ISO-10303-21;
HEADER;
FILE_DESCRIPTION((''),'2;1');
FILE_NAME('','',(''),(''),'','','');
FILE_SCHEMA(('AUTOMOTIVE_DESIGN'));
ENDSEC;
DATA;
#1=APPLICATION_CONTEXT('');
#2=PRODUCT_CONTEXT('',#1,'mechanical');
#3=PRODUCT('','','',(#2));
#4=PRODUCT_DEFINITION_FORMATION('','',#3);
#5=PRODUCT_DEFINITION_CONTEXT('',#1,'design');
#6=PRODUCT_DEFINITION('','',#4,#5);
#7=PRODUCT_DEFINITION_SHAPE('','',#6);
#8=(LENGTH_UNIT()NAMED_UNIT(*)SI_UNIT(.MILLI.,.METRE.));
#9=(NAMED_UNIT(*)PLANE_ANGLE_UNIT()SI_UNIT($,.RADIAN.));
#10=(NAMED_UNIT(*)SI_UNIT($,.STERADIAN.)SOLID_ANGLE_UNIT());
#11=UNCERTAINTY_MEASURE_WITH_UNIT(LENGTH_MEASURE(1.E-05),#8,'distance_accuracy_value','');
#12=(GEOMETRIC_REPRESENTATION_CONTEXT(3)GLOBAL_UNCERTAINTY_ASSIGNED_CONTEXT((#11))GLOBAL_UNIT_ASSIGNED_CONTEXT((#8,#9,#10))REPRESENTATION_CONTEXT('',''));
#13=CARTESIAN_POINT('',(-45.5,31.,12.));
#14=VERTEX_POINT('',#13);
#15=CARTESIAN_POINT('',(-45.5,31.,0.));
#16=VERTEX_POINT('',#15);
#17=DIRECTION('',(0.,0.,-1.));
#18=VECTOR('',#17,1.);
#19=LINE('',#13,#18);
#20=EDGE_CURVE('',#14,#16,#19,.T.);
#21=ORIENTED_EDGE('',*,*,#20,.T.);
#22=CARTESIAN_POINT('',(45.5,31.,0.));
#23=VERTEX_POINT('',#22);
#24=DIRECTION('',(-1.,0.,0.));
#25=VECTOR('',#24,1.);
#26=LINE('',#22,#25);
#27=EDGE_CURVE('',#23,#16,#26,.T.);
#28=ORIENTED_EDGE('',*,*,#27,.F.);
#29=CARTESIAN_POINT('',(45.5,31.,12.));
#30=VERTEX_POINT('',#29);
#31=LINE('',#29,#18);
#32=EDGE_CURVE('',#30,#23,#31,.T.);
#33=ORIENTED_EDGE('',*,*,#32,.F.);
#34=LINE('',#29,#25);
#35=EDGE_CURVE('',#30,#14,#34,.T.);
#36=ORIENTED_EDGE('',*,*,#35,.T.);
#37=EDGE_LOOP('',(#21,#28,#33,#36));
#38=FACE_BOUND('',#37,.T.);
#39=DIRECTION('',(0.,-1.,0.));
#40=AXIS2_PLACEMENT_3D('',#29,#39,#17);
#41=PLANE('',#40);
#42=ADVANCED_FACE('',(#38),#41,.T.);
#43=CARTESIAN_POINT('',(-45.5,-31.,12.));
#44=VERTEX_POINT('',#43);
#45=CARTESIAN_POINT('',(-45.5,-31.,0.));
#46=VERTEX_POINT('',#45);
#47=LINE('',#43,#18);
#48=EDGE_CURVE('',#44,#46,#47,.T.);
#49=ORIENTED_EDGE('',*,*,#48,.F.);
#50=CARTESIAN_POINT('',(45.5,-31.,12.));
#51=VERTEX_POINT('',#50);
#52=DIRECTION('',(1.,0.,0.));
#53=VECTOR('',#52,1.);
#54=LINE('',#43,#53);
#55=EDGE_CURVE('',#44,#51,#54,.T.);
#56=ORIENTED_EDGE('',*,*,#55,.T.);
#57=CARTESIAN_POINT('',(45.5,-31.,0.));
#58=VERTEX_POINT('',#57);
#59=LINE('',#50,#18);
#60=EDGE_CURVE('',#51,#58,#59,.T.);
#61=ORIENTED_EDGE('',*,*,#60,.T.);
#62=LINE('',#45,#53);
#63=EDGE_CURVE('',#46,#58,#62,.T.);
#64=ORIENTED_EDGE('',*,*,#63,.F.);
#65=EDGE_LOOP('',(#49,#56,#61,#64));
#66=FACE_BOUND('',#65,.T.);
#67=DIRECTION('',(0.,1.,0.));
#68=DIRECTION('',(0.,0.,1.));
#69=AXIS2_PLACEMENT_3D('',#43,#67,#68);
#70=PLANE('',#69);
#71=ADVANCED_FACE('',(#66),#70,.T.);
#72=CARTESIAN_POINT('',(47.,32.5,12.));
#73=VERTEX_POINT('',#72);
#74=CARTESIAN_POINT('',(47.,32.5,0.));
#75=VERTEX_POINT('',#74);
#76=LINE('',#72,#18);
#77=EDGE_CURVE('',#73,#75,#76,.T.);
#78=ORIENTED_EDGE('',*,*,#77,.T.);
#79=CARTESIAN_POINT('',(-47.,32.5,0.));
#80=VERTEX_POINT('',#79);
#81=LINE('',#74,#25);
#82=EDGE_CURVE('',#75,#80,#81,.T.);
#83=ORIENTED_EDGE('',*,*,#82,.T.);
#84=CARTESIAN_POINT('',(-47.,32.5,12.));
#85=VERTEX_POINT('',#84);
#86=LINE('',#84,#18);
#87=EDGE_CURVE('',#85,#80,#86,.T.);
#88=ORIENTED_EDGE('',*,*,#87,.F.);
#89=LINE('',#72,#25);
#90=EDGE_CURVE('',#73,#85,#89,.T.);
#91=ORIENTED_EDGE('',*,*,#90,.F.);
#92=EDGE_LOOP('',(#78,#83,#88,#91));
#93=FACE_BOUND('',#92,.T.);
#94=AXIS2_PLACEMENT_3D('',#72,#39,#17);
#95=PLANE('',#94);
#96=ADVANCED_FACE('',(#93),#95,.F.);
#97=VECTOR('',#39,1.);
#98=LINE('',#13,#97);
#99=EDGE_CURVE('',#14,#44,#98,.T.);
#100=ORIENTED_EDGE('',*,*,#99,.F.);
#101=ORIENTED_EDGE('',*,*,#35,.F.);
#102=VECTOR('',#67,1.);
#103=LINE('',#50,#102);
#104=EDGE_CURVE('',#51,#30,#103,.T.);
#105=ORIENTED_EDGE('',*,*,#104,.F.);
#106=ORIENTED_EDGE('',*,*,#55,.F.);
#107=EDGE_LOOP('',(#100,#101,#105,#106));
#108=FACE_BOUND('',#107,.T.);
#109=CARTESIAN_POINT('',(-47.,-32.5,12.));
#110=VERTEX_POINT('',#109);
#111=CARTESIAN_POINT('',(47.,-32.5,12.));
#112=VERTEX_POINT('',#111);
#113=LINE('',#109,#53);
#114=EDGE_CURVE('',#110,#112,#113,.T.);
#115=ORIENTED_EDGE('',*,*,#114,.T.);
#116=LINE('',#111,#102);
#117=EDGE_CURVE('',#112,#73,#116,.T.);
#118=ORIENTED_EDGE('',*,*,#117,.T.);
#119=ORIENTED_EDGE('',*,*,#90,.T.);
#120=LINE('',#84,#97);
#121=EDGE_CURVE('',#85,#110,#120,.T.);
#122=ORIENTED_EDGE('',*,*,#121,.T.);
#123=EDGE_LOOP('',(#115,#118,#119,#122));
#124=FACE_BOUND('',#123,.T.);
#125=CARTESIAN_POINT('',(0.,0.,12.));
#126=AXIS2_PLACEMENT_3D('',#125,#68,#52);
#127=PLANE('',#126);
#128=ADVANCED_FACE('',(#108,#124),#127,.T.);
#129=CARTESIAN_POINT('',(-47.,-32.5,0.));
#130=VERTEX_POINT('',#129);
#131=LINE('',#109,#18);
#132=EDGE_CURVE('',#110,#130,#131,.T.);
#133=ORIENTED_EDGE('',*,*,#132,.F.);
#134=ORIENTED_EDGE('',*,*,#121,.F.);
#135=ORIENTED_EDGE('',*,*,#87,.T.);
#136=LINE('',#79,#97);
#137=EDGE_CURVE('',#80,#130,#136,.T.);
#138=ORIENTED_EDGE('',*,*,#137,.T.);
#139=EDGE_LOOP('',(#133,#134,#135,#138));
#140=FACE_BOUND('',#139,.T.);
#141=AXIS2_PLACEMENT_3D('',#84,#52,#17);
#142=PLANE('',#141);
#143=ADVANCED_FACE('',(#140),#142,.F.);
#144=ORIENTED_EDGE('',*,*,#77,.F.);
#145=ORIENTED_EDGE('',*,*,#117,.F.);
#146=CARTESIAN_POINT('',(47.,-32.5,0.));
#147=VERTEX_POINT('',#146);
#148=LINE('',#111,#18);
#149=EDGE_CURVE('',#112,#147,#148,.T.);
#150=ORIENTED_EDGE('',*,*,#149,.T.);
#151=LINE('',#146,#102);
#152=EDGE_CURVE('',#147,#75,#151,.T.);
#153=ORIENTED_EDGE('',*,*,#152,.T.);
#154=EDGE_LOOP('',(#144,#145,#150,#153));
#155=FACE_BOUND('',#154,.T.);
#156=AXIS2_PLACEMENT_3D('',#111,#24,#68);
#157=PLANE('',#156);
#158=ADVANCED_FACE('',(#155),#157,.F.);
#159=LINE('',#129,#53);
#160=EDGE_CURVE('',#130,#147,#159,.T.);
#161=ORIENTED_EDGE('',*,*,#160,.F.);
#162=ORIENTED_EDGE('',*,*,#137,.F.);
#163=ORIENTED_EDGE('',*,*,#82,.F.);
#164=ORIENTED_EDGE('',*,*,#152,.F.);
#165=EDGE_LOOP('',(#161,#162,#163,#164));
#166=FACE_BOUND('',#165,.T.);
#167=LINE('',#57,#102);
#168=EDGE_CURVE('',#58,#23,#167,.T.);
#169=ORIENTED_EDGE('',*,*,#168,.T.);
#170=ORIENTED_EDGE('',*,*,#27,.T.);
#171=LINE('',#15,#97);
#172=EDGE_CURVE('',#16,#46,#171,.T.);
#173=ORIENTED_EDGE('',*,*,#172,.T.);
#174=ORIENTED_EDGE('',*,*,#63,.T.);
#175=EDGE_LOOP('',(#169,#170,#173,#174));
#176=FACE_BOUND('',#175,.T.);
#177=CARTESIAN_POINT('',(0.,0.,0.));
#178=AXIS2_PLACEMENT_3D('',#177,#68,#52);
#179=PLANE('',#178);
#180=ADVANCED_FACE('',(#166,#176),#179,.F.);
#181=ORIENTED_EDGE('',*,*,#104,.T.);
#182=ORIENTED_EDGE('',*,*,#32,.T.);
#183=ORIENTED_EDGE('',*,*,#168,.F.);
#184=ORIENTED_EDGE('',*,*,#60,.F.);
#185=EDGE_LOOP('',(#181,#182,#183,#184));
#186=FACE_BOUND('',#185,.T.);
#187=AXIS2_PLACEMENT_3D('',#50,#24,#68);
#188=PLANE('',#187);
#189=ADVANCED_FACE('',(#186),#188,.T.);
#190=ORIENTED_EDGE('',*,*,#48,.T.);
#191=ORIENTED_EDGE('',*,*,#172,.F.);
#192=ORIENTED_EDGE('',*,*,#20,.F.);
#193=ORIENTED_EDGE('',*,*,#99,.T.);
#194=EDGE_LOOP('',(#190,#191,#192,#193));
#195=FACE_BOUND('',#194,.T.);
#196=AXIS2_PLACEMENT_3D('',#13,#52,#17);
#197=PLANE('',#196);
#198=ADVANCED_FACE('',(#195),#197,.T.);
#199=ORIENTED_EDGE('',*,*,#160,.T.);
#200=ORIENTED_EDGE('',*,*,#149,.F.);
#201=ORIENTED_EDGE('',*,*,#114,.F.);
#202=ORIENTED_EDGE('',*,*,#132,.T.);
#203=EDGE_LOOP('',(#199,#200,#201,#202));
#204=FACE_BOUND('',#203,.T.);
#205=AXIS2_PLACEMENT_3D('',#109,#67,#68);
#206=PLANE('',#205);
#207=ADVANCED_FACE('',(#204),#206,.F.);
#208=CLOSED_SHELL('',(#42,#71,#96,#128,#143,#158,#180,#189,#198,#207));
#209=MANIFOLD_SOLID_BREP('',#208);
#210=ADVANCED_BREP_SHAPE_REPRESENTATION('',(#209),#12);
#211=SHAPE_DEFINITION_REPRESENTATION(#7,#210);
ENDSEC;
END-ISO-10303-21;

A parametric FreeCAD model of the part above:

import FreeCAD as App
import Part
import Sketcher


def add_polygon(sketch, points):
    """Adds a closed chain of lines whose ends are joined by coincident constraints."""
    first, n = sketch.GeometryCount, len(points)
    for a, b in zip(points, points[1:] + points[:1]):
        sketch.addGeometry(Part.LineSegment(App.Vector(*a, 0), App.Vector(*b, 0)), False)
    for i in range(n):
        sketch.addConstraint(Sketcher.Constraint("Coincident", first + i, 2, first + (i + 1) % n, 1))

doc = App.newDocument("Part")
body = doc.addObject("PartDesign::Body", "Body")

sketch1 = doc.addObject("Sketcher::SketchObject", "Sketch")
body.addObject(sketch1)
sketch1.AttachmentSupport = (doc.XY_Plane, [""])
sketch1.MapMode = "FlatFace"
add_polygon(sketch1, [(-47, 32), (-47, -32), (47, -32), (47, 32)])
add_polygon(sketch1, [(46, -31), (-46, -31), (-46, 31), (46, 31)])
sketch1.addConstraint([
    Sketcher.Constraint("Vertical", 0),
    Sketcher.Constraint("Horizontal", 1),
    Sketcher.Constraint("Vertical", 2),
    Sketcher.Constraint("Horizontal", 3),
    Sketcher.Constraint("Horizontal", 4),
    Sketcher.Constraint("Vertical", 5),
    Sketcher.Constraint("Horizontal", 6),
    Sketcher.Constraint("Vertical", 7),
    Sketcher.Constraint("Symmetric", 0, 2, 2, 2, -1, 1),
    Sketcher.Constraint("Symmetric", 4, 2, 6, 2, -1, 1),
    Sketcher.Constraint("DistanceX", 1, 1, 1, 2, 94.0),
    Sketcher.Constraint("DistanceX", 4, 2, 4, 1, 91.0),
    Sketcher.Constraint("DistanceY", 0, 2, 0, 1, 65.0),
    Sketcher.Constraint("DistanceY", 5, 1, 5, 2, 62.0),
])
pad1 = doc.addObject("PartDesign::Pad", "Pad")
body.addObject(pad1)
pad1.Profile = sketch1
pad1.Length = 12

doc.recompute()
